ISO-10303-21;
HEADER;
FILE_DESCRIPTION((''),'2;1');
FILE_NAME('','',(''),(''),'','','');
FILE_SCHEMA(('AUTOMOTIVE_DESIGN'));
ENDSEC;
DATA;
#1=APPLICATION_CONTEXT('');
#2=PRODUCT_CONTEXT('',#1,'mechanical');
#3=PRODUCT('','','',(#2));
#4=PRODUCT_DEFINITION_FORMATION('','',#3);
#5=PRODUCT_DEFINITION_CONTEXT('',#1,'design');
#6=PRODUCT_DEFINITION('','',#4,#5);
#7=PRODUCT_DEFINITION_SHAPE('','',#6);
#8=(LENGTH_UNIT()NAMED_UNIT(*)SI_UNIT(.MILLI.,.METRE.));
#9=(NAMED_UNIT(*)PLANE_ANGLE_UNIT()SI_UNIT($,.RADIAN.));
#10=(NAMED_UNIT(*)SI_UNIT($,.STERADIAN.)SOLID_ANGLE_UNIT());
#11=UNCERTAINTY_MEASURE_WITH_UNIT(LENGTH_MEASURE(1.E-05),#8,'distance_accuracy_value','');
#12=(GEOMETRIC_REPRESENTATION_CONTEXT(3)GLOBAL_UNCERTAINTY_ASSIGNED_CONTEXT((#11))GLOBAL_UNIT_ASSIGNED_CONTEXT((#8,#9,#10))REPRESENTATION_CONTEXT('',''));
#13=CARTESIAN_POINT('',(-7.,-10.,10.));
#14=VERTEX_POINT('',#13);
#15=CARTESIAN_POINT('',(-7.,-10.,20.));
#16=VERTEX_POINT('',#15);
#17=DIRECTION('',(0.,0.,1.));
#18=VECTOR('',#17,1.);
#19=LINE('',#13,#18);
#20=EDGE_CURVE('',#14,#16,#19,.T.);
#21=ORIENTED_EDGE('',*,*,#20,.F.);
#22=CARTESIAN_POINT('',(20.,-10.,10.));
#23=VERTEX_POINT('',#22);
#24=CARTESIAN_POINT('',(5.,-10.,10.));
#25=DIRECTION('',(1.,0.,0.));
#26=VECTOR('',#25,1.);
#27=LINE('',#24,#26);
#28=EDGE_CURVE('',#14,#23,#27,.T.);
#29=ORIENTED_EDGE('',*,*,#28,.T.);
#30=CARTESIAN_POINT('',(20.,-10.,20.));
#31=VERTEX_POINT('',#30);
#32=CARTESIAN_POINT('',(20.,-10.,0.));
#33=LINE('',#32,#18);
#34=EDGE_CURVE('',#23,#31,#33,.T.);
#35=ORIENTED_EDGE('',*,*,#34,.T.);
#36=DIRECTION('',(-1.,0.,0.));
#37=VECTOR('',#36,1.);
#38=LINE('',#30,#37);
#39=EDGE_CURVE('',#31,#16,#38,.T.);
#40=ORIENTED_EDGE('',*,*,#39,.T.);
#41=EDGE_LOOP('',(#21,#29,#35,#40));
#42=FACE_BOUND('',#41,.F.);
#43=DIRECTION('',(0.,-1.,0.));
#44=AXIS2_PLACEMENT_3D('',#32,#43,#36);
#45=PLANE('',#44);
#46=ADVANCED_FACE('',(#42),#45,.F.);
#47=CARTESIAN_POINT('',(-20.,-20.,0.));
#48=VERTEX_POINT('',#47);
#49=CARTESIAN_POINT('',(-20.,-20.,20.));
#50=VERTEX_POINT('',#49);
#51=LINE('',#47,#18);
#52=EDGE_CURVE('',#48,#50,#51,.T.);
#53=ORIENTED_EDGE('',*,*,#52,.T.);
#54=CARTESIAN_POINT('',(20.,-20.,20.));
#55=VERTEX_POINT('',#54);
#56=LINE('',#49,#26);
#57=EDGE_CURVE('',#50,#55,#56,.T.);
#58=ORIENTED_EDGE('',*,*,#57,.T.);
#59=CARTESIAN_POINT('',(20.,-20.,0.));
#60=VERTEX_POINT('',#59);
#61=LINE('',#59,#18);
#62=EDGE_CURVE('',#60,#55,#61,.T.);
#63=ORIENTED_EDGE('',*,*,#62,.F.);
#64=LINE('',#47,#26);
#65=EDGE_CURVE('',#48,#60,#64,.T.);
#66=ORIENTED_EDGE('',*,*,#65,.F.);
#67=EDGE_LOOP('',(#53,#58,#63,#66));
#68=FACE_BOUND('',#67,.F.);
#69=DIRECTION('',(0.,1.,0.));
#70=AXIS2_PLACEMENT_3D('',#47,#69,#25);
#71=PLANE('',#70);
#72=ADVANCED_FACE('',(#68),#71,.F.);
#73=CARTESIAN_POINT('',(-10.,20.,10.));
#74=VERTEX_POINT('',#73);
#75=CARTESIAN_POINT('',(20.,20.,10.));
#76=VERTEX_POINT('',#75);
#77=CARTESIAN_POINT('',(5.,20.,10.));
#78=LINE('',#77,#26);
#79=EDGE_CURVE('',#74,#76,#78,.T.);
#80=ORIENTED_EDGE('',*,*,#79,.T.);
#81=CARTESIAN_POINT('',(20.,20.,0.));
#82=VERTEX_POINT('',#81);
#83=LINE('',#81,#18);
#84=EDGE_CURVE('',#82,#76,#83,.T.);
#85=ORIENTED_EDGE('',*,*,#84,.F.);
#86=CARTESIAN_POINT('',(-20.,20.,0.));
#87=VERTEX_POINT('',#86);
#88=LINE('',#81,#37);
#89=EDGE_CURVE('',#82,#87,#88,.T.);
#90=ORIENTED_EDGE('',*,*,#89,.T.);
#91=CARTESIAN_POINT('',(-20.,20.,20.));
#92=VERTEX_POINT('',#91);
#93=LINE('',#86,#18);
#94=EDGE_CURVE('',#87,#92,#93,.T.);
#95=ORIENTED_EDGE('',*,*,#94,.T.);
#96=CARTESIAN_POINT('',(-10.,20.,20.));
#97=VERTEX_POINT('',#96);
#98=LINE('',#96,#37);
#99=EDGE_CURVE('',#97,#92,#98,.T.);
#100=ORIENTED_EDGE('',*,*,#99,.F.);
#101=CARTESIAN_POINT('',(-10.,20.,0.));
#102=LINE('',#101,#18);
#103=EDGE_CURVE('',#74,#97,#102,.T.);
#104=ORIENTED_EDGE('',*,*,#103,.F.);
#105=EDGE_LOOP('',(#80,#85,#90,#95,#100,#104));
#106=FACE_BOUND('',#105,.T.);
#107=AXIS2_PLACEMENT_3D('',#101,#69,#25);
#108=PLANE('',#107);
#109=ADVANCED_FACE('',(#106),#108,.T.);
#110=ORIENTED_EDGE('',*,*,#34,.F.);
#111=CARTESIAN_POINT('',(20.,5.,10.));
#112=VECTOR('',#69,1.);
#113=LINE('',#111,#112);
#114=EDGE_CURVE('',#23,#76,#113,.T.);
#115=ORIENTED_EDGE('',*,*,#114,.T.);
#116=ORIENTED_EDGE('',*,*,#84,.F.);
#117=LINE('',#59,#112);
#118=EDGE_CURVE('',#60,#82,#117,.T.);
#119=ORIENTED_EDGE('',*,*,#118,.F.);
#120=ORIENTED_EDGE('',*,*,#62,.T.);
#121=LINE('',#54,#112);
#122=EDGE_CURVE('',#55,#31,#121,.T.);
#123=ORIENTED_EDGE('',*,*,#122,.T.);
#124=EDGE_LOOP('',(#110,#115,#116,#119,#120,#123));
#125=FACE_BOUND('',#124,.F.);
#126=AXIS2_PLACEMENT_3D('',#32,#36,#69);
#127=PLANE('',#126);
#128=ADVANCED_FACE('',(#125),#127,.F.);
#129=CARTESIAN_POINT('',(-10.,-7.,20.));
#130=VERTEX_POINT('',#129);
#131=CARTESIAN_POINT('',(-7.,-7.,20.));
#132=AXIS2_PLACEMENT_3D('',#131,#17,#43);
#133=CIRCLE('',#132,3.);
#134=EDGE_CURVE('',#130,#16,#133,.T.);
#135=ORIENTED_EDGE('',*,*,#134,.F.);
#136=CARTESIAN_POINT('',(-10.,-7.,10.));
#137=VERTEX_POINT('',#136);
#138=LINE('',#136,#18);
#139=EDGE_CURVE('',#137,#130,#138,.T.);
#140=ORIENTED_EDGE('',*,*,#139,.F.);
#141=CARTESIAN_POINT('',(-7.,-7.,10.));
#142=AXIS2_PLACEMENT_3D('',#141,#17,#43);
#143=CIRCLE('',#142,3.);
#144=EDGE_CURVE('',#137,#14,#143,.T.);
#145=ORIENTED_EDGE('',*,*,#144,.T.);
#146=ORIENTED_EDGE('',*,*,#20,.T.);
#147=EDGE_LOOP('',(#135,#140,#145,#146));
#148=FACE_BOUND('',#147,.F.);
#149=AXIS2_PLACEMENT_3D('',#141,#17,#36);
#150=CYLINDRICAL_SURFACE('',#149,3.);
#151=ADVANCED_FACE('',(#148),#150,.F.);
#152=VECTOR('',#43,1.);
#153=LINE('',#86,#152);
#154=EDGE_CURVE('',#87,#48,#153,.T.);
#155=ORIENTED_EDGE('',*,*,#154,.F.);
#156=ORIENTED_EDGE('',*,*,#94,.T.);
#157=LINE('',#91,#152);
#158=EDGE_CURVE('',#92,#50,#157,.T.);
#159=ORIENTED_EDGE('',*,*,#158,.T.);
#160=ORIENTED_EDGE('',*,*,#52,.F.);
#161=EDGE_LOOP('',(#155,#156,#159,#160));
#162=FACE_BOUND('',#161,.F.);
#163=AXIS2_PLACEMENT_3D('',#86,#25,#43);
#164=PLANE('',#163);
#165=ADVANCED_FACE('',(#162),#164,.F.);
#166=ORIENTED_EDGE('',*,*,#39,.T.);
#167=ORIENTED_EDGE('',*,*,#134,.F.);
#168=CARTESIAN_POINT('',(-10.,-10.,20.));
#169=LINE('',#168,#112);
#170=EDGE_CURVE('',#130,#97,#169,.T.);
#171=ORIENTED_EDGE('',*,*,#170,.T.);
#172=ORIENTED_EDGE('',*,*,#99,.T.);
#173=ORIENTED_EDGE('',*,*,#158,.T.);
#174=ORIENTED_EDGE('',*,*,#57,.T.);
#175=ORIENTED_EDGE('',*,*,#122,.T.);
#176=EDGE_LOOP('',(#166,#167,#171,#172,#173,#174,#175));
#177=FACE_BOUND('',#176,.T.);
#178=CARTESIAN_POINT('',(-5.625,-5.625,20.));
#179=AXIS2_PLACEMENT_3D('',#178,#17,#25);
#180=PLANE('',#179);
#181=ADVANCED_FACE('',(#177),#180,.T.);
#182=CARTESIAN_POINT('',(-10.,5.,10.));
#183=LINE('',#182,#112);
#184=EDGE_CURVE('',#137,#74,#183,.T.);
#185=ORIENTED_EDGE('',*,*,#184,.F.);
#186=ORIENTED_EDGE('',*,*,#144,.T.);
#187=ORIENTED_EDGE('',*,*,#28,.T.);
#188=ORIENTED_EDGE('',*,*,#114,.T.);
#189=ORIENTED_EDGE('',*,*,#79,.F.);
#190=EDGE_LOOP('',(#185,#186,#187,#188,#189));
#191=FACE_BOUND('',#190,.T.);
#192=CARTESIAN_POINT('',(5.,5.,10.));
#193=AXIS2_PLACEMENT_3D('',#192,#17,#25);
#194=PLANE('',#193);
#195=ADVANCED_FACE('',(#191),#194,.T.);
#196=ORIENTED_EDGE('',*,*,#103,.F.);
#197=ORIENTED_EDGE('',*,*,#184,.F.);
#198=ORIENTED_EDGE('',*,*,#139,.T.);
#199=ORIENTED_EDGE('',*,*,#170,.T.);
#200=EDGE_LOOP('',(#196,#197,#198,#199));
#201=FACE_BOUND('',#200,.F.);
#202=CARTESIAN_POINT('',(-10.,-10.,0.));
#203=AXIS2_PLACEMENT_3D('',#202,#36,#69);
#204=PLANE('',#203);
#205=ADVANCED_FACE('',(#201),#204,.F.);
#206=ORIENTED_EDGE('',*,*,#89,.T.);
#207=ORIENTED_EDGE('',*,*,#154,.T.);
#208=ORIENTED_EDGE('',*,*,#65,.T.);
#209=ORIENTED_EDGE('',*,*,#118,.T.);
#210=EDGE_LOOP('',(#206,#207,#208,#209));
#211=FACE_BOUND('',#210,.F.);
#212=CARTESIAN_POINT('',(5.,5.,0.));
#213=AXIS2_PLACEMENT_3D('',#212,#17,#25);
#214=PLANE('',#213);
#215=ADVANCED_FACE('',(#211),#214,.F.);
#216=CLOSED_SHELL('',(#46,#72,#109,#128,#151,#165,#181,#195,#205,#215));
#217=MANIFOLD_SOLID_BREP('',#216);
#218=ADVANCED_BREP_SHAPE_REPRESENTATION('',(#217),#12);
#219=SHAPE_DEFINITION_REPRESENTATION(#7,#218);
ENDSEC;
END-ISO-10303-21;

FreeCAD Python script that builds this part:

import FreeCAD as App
import Part
import Sketcher

V = App.Vector
Q = App.Units.Quantity


def edges_at(feature, points):
    """Names of the edges that pass closest to the given points."""
    edges = feature.Shape.Edges
    near = lambda p: min(range(len(edges)), key=lambda i: edges[i].distToShape(Part.Vertex(*p))[0])
    return sorted({f"Edge{near(p) + 1}" for p in points})


def add_polygon(sketch, points):
    """Adds a closed chain of lines whose ends are joined by coincident constraints."""
    first, n = sketch.GeometryCount, len(points)
    for a, b in zip(points, points[1:] + points[:1]):
        sketch.addGeometry(Part.LineSegment(App.Vector(*a, 0), App.Vector(*b, 0)), False)
    for i in range(n):
        sketch.addConstraint(Sketcher.Constraint("Coincident", first + i, 2, first + (i + 1) % n, 1))

doc = App.newDocument("Part")
body = doc.addObject("PartDesign::Body", "Body")

# Sketch on XY plane
sketch1 = body.newObject("Sketcher::SketchObject", "Sketch")
sketch1.AttachmentSupport = (doc.getObject("XY_Plane"), [""])
sketch1.MapMode = "FlatFace"
add_polygon(sketch1, [(-20, -20), (20, -20), (20, -10), (-10, -10), (-10, 20), (-20, 20)])  # lines 0-5
sketch1.addConstraint(Sketcher.Constraint("Horizontal", 0))
sketch1.addConstraint(Sketcher.Constraint("Vertical", 1))
sketch1.addConstraint(Sketcher.Constraint("Horizontal", 2))
sketch1.addConstraint(Sketcher.Constraint("Vertical", 3))
sketch1.addConstraint(Sketcher.Constraint("Horizontal", 4))
sketch1.addConstraint(Sketcher.Constraint("Vertical", 5))
sketch1.addConstraint(Sketcher.Constraint("Symmetric", 0, 2, 4, 2, -1, 1))
sketch1.addConstraint(Sketcher.Constraint("Equal", 4, 1))
sketch1.addConstraint(Sketcher.Constraint("Equal", 2, 3))
sketch1.addConstraint(Sketcher.Constraint("DistanceX", 0, 1, 0, 2, Q("40 mm")))
sketch1.addConstraint(Sketcher.Constraint("DistanceX", 2, 2, 2, 1, Q("30 mm")))
pad1 = body.newObject("PartDesign::Pad", "Pad")
pad1.Profile = sketch1
pad1.Length = 20

# Sketch on XY plane
sketch2 = body.newObject("Sketcher::SketchObject", "Sketch001")
sketch2.AttachmentSupport = (doc.getObject("XY_Plane"), [""])
sketch2.MapMode = "FlatFace"
add_polygon(sketch2, [(-10, 20), (-10, -10), (20, -10), (20, 20)])  # lines 0-3
sketch2.addConstraint(Sketcher.Constraint("Vertical", 0))
sketch2.addConstraint(Sketcher.Constraint("Horizontal", 1))
sketch2.addConstraint(Sketcher.Constraint("Vertical", 2))
sketch2.addConstraint(Sketcher.Constraint("Horizontal", 3))
sketch2.addConstraint(Sketcher.Constraint("Equal", 3, 0))
sketch2.addConstraint(Sketcher.Constraint("DistanceX", 1, 1, 1, 2, Q("30 mm")))
sketch2.addConstraint(Sketcher.Constraint("DistanceX", 0, 2, -1, 1, Q("10 mm")))
sketch2.addConstraint(Sketcher.Constraint("DistanceY", 0, 2, -1, 1, Q("10 mm")))
pad2 = body.newObject("PartDesign::Pad", "Pad001")
pad2.Profile = sketch2
pad2.Length = 10
doc.recompute()

fillet = body.newObject("PartDesign::Fillet", "Fillet")
fillet.Base = (pad2, edges_at(pad2, [(-10, -10, 15)]))
fillet.Radius = 3

doc.recompute()
